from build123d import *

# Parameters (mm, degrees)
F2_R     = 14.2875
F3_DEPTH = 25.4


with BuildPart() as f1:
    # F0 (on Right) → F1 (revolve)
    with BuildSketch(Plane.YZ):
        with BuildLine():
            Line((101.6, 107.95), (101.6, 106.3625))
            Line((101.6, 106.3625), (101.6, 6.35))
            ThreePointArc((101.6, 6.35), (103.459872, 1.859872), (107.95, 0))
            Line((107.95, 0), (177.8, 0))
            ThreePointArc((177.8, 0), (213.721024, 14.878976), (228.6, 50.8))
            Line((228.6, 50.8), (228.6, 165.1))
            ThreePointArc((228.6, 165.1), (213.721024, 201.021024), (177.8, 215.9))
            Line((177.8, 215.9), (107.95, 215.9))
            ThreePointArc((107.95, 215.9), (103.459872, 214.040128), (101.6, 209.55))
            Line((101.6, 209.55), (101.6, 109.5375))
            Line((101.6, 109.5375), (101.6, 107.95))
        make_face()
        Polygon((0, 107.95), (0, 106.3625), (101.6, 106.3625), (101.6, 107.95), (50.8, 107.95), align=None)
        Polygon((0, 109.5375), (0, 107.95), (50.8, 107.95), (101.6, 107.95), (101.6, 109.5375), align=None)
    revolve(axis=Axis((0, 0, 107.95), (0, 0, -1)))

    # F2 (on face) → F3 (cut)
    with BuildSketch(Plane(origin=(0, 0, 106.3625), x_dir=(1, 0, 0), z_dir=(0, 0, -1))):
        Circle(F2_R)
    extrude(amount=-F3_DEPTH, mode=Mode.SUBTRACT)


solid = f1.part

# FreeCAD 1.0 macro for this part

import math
import FreeCAD as App
import Part
import Sketcher
from FreeCAD import Vector
Q = App.Units.Quantity

doc = App.newDocument("Part")
params = doc.addObject("Spreadsheet::Sheet", "Params")
for row, (alias, value) in enumerate([
    ("sketch1_radius", "2.0000001 in"),
    ("sketch1_width", "4 in"),
    ("sketch1_radius2", "0.25 in"),
    ("sketch1_height", "4.5 in"),
    ("sketch1_height2", "3.9375 in"),
    ("revolution_angle", "360 deg"),
    ("sketch2_diameter", "1.125 in"),
    ("pocket1_length", "1 in"),
], start=1):
    params.set(f"A{row}", alias)
    params.set(f"B{row}", "=" + value)
    params.setAlias(f"B{row}", alias)

body = doc.addObject("PartDesign::Body", "Body")

# Sketch on YZ plane
sketch1 = body.newObject("Sketcher::SketchObject", "Sketch")
sketch1.AttachmentSupport = (doc.getObject("YZ_Plane"), [""])
sketch1.MapMode = "FlatFace"
sketch1.addGeometry([
    Part.ArcOfCircle(Part.Circle(Vector(107.95, 6.35, 0), Vector(0, 0, 1), 6.35), math.radians(-179.999998), math.radians(-90.000002)),  # 0
    Part.LineSegment(Vector(107.95, 0, 0), Vector(177.8, 0, 0)),  # 1
    Part.ArcOfCircle(Part.Circle(Vector(177.799998, 50.800002, 0), Vector(0, 0, 1), 50.800002), math.radians(-89.999998), math.radians(-0.000002)),  # 2
    Part.LineSegment(Vector(228.6, 50.8, 0), Vector(228.6, 165.1, 0)),  # 3
    Part.ArcOfCircle(Part.Circle(Vector(177.799998, 165.099998, 0), Vector(0, 0, 1), 50.800002), math.radians(0.000002), math.radians(89.999998)),  # 4
    Part.LineSegment(Vector(177.8, 215.9, 0), Vector(107.95, 215.9, 0)),  # 5
    Part.ArcOfCircle(Part.Circle(Vector(107.95, 209.55, 0), Vector(0, 0, 1), 6.35), math.radians(90.000002), math.radians(179.999998)),  # 6
    Part.LineSegment(Vector(101.6, 209.55, 0), Vector(101.6, 109.5375, 0)),  # 7
    Part.LineSegment(Vector(101.6, 109.5375, 0), Vector(0, 109.5375, 0)),  # 8
    Part.LineSegment(Vector(0, 109.5375, 0), Vector(0, 106.3625, 0)),  # 9
    Part.LineSegment(Vector(0, 106.3625, 0), Vector(101.6, 106.3625, 0)),  # 10
    Part.LineSegment(Vector(101.6, 106.3625, 0), Vector(101.6, 6.35, 0)),  # 11
], False)
sketch1.addConstraint([
    Sketcher.Constraint("Tangent", 0, 2, 1, 1),
    Sketcher.Constraint("Tangent", 1, 2, 2, 1),
    Sketcher.Constraint("Tangent", 2, 2, 3, 1),
    Sketcher.Constraint("Tangent", 3, 2, 4, 1),
    Sketcher.Constraint("Tangent", 4, 2, 5, 1),
    Sketcher.Constraint("Tangent", 5, 2, 6, 1),
    Sketcher.Constraint("Tangent", 6, 2, 7, 1),
    Sketcher.Constraint("Coincident", 7, 2, 8, 1),
    Sketcher.Constraint("Coincident", 8, 2, 9, 1),
    Sketcher.Constraint("Coincident", 9, 2, 10, 1),
    Sketcher.Constraint("Coincident", 10, 2, 11, 1),
    Sketcher.Constraint("Tangent", 11, 2, 0, 1),
    Sketcher.Constraint("Horizontal", 1),
    Sketcher.Constraint("Vertical", 3),
    Sketcher.Constraint("Horizontal", 5),
    Sketcher.Constraint("Vertical", 7),
    Sketcher.Constraint("Horizontal", 8),
    Sketcher.Constraint("Vertical", 9),
    Sketcher.Constraint("Horizontal", 10),
    Sketcher.Constraint("Vertical", 11),
    Sketcher.Constraint("Equal", 2, 4),
    Sketcher.Constraint("Equal", 0, 6),
    Sketcher.Constraint("PointOnObject", 0, 2, -1),
    Sketcher.Constraint("PointOnObject", 8, 2, -2),
    Sketcher.Constraint("Vertical", 0, 3, 6, 3),
    Sketcher.Constraint("Equal", 7, 11),
    Sketcher.Constraint("Radius", 2, Q("2.0000001 in")),
    Sketcher.Constraint("DistanceX", 8, 2, 8, 1, Q("4 in")),
    Sketcher.Constraint("Radius", 0, Q("0.25 in")),
    Sketcher.Constraint("DistanceY", 3, 1, 3, 2, Q("4.5 in")),
    Sketcher.Constraint("DistanceX", -1, 1, 2, 3, Q("6.9999999 in")),
    Sketcher.Constraint("DistanceY", 7, 2, 7, 1, Q("3.9375 in")),
])
sketch1.setExpression("Constraints[26]", "Params.sketch1_radius")
sketch1.setExpression("Constraints[27]", "Params.sketch1_width")
sketch1.setExpression("Constraints[28]", "Params.sketch1_radius2")
sketch1.setExpression("Constraints[29]", "Params.sketch1_height")
sketch1.setExpression("Constraints[31]", "Params.sketch1_height2")
revolution = body.newObject("PartDesign::Revolution", "Revolution")
revolution.Profile = sketch1
revolution.ReferenceAxis = (sketch1, ["V_Axis"])
revolution.setExpression("Angle", "Params.revolution_angle")

# Sketch on XY plane
sketch2 = body.newObject("Sketcher::SketchObject", "Sketch001")
sketch2.AttachmentSupport = (doc.getObject("XY_Plane"), [""])
sketch2.MapMode = "FlatFace"
sketch2.AttachmentOffset = App.Placement(Vector(0, 0, 4.1875 * 25.4), App.Rotation())
sketch2.addGeometry(Part.Circle(Vector(0, 0, 0), Vector(0, 0, 1), 14.2875), False)
sketch2.addConstraint([
    Sketcher.Constraint("Coincident", 0, 3, -1, 1),
    Sketcher.Constraint("Diameter", 0, Q("1.125 in")),
])
sketch2.setExpression("Constraints[1]", "Params.sketch2_diameter")
pocket1 = body.newObject("PartDesign::Pocket", "Pocket")
pocket1.Profile = sketch2
pocket1.setExpression("Length", "Params.pocket1_length")
pocket1.Reversed = True

doc.recompute()
